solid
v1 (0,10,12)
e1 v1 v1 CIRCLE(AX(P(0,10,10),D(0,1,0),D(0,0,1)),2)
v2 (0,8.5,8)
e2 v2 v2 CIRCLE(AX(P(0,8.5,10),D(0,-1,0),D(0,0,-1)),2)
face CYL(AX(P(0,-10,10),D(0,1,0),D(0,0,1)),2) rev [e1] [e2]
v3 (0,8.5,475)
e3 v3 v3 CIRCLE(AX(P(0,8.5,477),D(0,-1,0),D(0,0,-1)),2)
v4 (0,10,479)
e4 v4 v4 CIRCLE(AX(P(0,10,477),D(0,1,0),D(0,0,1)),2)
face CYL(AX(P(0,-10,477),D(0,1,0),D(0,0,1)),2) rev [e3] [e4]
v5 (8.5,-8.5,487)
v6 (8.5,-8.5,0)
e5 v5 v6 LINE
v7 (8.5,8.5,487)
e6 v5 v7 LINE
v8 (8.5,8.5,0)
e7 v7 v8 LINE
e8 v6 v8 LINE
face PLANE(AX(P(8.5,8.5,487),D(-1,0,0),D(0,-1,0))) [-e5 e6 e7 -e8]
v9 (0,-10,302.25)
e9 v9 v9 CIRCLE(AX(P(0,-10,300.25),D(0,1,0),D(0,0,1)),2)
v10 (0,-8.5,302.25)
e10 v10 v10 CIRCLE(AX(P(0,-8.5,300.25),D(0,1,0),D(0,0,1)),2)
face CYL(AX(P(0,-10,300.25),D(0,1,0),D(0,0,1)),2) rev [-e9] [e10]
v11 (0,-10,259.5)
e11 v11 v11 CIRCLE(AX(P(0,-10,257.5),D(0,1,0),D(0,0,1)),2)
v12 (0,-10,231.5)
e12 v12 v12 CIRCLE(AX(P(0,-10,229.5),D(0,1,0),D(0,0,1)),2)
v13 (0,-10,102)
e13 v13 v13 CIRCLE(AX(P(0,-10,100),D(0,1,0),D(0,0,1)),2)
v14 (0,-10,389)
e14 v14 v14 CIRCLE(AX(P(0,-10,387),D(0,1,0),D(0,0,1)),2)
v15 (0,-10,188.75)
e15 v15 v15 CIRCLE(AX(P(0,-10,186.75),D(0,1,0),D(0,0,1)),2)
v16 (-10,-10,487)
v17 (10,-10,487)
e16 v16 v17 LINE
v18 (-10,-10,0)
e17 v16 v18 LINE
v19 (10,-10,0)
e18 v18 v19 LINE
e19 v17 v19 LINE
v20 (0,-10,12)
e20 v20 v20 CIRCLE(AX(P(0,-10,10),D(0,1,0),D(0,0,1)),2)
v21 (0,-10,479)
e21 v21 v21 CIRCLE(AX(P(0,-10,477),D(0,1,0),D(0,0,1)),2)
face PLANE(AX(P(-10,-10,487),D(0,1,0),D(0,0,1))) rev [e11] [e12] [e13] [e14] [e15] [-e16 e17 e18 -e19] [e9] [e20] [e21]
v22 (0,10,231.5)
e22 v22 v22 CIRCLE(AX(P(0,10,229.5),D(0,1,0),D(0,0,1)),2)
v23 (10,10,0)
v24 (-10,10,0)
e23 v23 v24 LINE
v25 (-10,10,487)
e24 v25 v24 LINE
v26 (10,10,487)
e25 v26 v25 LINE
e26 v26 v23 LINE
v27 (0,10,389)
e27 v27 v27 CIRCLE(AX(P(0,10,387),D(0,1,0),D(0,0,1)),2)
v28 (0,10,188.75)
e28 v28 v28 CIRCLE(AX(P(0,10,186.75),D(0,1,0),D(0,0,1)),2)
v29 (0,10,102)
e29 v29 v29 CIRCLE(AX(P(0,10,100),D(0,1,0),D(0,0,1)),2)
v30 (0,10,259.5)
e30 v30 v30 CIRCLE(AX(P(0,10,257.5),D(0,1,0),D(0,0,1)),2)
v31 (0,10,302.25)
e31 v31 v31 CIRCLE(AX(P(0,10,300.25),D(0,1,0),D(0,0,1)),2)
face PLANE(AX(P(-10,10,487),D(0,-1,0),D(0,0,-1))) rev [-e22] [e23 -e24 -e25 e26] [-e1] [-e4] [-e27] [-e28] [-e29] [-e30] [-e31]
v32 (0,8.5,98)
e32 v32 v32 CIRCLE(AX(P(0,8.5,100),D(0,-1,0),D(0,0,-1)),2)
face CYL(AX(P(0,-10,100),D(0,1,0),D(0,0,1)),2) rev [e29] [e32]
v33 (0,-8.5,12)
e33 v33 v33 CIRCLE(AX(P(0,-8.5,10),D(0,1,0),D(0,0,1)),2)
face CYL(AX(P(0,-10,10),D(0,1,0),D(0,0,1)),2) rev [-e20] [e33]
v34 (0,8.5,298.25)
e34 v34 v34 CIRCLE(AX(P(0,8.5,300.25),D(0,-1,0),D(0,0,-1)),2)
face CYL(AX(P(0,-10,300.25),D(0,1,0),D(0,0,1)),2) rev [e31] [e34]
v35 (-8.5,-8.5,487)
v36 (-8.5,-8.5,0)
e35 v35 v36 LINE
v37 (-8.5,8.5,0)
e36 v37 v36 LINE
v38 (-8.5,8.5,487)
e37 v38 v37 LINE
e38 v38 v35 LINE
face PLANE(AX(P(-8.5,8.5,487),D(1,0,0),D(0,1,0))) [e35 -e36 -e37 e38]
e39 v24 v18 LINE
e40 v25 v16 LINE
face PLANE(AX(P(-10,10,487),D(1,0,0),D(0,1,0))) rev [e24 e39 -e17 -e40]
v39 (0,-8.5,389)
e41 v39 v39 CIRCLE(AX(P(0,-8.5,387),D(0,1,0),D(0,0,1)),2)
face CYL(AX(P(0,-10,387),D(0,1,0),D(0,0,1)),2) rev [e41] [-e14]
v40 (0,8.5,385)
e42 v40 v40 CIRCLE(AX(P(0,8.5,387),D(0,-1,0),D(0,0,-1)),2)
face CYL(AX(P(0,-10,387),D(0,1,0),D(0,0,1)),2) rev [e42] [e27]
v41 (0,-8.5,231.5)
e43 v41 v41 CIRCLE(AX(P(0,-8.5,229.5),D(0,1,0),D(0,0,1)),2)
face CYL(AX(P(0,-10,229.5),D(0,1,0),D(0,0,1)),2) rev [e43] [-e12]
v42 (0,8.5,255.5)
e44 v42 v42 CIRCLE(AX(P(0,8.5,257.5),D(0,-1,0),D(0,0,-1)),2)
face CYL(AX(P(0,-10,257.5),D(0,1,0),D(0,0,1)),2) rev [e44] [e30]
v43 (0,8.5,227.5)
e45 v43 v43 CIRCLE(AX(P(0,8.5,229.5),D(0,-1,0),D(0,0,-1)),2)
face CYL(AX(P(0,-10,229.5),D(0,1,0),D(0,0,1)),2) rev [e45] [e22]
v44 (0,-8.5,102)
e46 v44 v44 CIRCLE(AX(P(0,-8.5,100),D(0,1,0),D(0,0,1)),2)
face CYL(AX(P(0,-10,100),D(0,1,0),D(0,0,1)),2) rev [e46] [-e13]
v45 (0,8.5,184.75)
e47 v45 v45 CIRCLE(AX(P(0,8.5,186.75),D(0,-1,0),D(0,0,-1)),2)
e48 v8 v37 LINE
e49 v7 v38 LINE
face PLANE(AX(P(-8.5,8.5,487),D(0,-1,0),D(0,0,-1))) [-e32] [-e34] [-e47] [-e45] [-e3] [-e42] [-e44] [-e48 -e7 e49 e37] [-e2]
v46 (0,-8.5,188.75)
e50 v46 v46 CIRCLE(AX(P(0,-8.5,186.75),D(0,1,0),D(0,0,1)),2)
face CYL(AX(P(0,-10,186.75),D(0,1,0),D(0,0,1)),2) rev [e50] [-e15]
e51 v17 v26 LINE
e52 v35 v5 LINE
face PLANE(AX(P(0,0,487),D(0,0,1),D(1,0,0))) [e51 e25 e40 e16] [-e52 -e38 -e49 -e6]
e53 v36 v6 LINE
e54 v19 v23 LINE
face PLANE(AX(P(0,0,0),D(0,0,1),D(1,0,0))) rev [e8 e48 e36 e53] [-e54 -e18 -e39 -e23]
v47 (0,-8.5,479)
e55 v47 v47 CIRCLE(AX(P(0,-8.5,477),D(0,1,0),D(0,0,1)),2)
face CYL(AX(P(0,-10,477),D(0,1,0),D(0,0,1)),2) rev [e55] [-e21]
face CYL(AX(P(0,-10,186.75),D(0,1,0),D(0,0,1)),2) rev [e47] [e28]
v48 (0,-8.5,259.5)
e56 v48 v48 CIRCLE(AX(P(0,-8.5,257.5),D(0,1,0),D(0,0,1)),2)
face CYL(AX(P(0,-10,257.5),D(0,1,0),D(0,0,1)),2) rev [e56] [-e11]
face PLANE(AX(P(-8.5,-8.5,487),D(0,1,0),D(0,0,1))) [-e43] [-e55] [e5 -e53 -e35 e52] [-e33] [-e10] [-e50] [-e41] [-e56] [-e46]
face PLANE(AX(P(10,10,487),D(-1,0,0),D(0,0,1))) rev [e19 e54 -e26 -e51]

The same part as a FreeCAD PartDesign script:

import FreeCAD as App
import Part
import Sketcher

V = App.Vector


def add_polygon(sketch, points):
    """Adds a closed chain of lines whose ends are joined by coincident constraints."""
    first, n = sketch.GeometryCount, len(points)
    for a, b in zip(points, points[1:] + points[:1]):
        sketch.addGeometry(Part.LineSegment(App.Vector(*a, 0), App.Vector(*b, 0)), False)
    for i in range(n):
        sketch.addConstraint(Sketcher.Constraint("Coincident", first + i, 2, first + (i + 1) % n, 1))

doc = App.newDocument("Part")
body = doc.addObject("PartDesign::Body", "Body")

# Sketch on XY plane
sketch1 = body.newObject("Sketcher::SketchObject", "Sketch")
sketch1.AttachmentSupport = (doc.getObject("XY_Plane"), [""])
sketch1.MapMode = "FlatFace"
add_polygon(sketch1, [(-10, 10), (-10, -10), (10, -10), (10, 10)])  # lines 0-3
add_polygon(sketch1, [(8.5, -8.5), (-8.5, -8.5), (-8.5, 8.5), (8.5, 8.5)])  # lines 4-7
sketch1.addConstraint(Sketcher.Constraint("Vertical", 0))
sketch1.addConstraint(Sketcher.Constraint("Horizontal", 1))
sketch1.addConstraint(Sketcher.Constraint("Vertical", 2))
sketch1.addConstraint(Sketcher.Constraint("Horizontal", 3))
sketch1.addConstraint(Sketcher.Constraint("Horizontal", 4))
sketch1.addConstraint(Sketcher.Constraint("Vertical", 5))
sketch1.addConstraint(Sketcher.Constraint("Horizontal", 6))
sketch1.addConstraint(Sketcher.Constraint("Vertical", 7))
sketch1.addConstraint(Sketcher.Constraint("Symmetric", 0, 2, 2, 2, -1, 1))
sketch1.addConstraint(Sketcher.Constraint("Symmetric", 4, 2, 6, 2, -1, 1))
sketch1.addConstraint(Sketcher.Constraint("Equal", 3, 0))
sketch1.addConstraint(Sketcher.Constraint("Equal", 6, 5))
sketch1.addConstraint(Sketcher.Constraint("DistanceX", 1, 1, 1, 2, 20.0))
sketch1.addConstraint(Sketcher.Constraint("DistanceX", 4, 2, 4, 1, 17.0))
pad1 = body.newObject("PartDesign::Pad", "Pad")
pad1.Profile = sketch1
pad1.Length = 487

# Sketch on XZ plane
sketch2 = body.newObject("Sketcher::SketchObject", "Sketch001")
sketch2.AttachmentSupport = (doc.getObject("XZ_Plane"), [""])
sketch2.MapMode = "FlatFace"
sketch2.AttachmentOffset = App.Placement(V(0, 0, -10), App.Rotation())
sketch2.addGeometry(Part.Circle(V(0, 10, 0), V(0, 0, 1), 2), False)
sketch2.addGeometry(Part.Circle(V(0, 477, 0), V(0, 0, 1), 2), False)
sketch2.addGeometry(Part.Circle(V(0, 100, 0), V(0, 0, 1), 2), False)
sketch2.addGeometry(Part.Circle(V(0, 387, 0), V(0, 0, 1), 2), False)
sketch2.addGeometry(Part.Circle(V(0, 186.75, 0), V(0, 0, 1), 2), False)
sketch2.addGeometry(Part.Circle(V(0, 300.25, 0), V(0, 0, 1), 2), False)
sketch2.addConstraint(Sketcher.Constraint("Equal", 0, 1))
sketch2.addConstraint(Sketcher.Constraint("Equal", 1, 2))
sketch2.addConstraint(Sketcher.Constraint("Equal", 2, 3))
sketch2.addConstraint(Sketcher.Constraint("Equal", 3, 4))
sketch2.addConstraint(Sketcher.Constraint("Equal", 4, 5))
sketch2.addConstraint(Sketcher.Constraint("PointOnObject", 0, 3, -2))
sketch2.addConstraint(Sketcher.Constraint("PointOnObject", 1, 3, -2))
sketch2.addConstraint(Sketcher.Constraint("PointOnObject", 2, 3, -2))
sketch2.addConstraint(Sketcher.Constraint("PointOnObject", 3, 3, -2))
sketch2.addConstraint(Sketcher.Constraint("PointOnObject", 4, 3, -2))
sketch2.addConstraint(Sketcher.Constraint("PointOnObject", 5, 3, -2))
sketch2.addConstraint(Sketcher.Constraint("Diameter", 0, 4.0))
sketch2.addConstraint(Sketcher.Constraint("DistanceY", -1, 1, 0, 3, 10.0))
sketch2.addConstraint(Sketcher.Constraint("DistanceY", -1, 1, 1, 3, 477.0))
sketch2.addConstraint(Sketcher.Constraint("DistanceY", -1, 1, 2, 3, 100.0))
sketch2.addConstraint(Sketcher.Constraint("DistanceY", -1, 1, 3, 3, 387.0))
sketch2.addConstraint(Sketcher.Constraint("DistanceY", 4, 3, 5, 3, 113.5))
sketch2.addConstraint(Sketcher.Constraint("DistanceY", -1, 1, 4, 3, 186.75))
pocket1 = body.newObject("PartDesign::Pocket", "Pocket")
pocket1.Profile = sketch2
pocket1.Length = 20
pocket1.Reversed = True

# Sketch on XZ plane
sketch3 = body.newObject("Sketcher::SketchObject", "Sketch002")
sketch3.AttachmentSupport = (doc.getObject("XZ_Plane"), [""])
sketch3.MapMode = "FlatFace"
sketch3.AttachmentOffset = App.Placement(V(0, 0, -10), App.Rotation())
sketch3.addGeometry(Part.Circle(V(0, 229.5, 0), V(0, 0, 1), 2), False)
sketch3.addGeometry(Part.Circle(V(0, 257.5, 0), V(0, 0, 1), 2), False)
sketch3.addConstraint(Sketcher.Constraint("Equal", 0, 1))
sketch3.addConstraint(Sketcher.Constraint("PointOnObject", 0, 3, -2))
sketch3.addConstraint(Sketcher.Constraint("PointOnObject", 1, 3, -2))
sketch3.addConstraint(Sketcher.Constraint("Diameter", 0, 4.0))
sketch3.addConstraint(Sketcher.Constraint("DistanceY", 0, 3, 1, 3, 28.0))
sketch3.addConstraint(Sketcher.Constraint("DistanceY", -1, 1, 0, 3, 229.5))
pocket2 = body.newObject("PartDesign::Pocket", "Pocket001")
pocket2.Profile = sketch3
pocket2.Length = 20
pocket2.Reversed = True

doc.recompute()
